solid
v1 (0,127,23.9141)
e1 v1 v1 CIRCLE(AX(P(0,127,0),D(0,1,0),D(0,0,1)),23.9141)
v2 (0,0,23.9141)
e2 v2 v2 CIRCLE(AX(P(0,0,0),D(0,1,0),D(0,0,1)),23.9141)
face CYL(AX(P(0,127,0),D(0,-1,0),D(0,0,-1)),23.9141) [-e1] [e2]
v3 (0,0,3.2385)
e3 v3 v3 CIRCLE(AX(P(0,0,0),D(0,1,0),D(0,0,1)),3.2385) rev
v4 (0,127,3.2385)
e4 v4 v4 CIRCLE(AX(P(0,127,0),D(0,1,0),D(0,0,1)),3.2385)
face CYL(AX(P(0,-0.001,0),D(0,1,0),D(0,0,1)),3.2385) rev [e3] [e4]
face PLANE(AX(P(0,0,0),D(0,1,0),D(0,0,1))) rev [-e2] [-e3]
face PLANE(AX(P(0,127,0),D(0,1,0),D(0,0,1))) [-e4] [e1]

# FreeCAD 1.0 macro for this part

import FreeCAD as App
import Part
import Sketcher

V = App.Vector
Q = App.Units.Quantity

doc = App.newDocument("Part")
params = doc.addObject("Spreadsheet::Sheet", "Params")
for row, (alias, value) in enumerate([
    ("sketch1_diameter", "1.883 in"),
    ("pad1_length", "5 in"),
    ("sketch2_diameter", "0.255 in"),
], start=1):
    params.set(f"A{row}", alias)
    params.set(f"B{row}", "=" + value)
    params.setAlias(f"B{row}", alias)

body = doc.addObject("PartDesign::Body", "Body")

# Sketch on XZ plane
sketch1 = body.newObject("Sketcher::SketchObject", "Sketch")
sketch1.AttachmentSupport = (doc.getObject("XZ_Plane"), [""])
sketch1.MapMode = "FlatFace"
sketch1.addGeometry(Part.Circle(V(0, 0, 0), V(0, 0, 1), 24), False)
sketch1.addConstraint([
    Sketcher.Constraint("Coincident", 0, 3, -1, 1),
    Sketcher.Constraint("Diameter", 0, Q("1.883 in")),
])
sketch1.setExpression("Constraints[1]", "Params.sketch1_diameter")
pad1 = body.newObject("PartDesign::Pad", "Pad")
pad1.Profile = sketch1
pad1.setExpression("Length", "Params.pad1_length")
pad1.Reversed = True

# Sketch on XZ plane
sketch2 = body.newObject("Sketcher::SketchObject", "Sketch001")
sketch2.AttachmentSupport = (doc.getObject("XZ_Plane"), [""])
sketch2.MapMode = "FlatFace"
sketch2.AttachmentOffset = App.Placement(V(0, 0, -5 * 25.4), App.Rotation())
sketch2.addGeometry(Part.Circle(V(0, 0, 0), V(0, 0, 1), 3.2), False)
sketch2.addConstraint([
    Sketcher.Constraint("Coincident", 0, 3, -1, 1),
    Sketcher.Constraint("Diameter", 0, Q("0.255 in")),
])
sketch2.setExpression("Constraints[1]", "Params.sketch2_diameter")
pocket1 = body.newObject("PartDesign::Pocket", "Pocket")
pocket1.Profile = sketch2
pocket1.Type = "UpToFirst"
pocket1.Reversed = True

doc.recompute()
